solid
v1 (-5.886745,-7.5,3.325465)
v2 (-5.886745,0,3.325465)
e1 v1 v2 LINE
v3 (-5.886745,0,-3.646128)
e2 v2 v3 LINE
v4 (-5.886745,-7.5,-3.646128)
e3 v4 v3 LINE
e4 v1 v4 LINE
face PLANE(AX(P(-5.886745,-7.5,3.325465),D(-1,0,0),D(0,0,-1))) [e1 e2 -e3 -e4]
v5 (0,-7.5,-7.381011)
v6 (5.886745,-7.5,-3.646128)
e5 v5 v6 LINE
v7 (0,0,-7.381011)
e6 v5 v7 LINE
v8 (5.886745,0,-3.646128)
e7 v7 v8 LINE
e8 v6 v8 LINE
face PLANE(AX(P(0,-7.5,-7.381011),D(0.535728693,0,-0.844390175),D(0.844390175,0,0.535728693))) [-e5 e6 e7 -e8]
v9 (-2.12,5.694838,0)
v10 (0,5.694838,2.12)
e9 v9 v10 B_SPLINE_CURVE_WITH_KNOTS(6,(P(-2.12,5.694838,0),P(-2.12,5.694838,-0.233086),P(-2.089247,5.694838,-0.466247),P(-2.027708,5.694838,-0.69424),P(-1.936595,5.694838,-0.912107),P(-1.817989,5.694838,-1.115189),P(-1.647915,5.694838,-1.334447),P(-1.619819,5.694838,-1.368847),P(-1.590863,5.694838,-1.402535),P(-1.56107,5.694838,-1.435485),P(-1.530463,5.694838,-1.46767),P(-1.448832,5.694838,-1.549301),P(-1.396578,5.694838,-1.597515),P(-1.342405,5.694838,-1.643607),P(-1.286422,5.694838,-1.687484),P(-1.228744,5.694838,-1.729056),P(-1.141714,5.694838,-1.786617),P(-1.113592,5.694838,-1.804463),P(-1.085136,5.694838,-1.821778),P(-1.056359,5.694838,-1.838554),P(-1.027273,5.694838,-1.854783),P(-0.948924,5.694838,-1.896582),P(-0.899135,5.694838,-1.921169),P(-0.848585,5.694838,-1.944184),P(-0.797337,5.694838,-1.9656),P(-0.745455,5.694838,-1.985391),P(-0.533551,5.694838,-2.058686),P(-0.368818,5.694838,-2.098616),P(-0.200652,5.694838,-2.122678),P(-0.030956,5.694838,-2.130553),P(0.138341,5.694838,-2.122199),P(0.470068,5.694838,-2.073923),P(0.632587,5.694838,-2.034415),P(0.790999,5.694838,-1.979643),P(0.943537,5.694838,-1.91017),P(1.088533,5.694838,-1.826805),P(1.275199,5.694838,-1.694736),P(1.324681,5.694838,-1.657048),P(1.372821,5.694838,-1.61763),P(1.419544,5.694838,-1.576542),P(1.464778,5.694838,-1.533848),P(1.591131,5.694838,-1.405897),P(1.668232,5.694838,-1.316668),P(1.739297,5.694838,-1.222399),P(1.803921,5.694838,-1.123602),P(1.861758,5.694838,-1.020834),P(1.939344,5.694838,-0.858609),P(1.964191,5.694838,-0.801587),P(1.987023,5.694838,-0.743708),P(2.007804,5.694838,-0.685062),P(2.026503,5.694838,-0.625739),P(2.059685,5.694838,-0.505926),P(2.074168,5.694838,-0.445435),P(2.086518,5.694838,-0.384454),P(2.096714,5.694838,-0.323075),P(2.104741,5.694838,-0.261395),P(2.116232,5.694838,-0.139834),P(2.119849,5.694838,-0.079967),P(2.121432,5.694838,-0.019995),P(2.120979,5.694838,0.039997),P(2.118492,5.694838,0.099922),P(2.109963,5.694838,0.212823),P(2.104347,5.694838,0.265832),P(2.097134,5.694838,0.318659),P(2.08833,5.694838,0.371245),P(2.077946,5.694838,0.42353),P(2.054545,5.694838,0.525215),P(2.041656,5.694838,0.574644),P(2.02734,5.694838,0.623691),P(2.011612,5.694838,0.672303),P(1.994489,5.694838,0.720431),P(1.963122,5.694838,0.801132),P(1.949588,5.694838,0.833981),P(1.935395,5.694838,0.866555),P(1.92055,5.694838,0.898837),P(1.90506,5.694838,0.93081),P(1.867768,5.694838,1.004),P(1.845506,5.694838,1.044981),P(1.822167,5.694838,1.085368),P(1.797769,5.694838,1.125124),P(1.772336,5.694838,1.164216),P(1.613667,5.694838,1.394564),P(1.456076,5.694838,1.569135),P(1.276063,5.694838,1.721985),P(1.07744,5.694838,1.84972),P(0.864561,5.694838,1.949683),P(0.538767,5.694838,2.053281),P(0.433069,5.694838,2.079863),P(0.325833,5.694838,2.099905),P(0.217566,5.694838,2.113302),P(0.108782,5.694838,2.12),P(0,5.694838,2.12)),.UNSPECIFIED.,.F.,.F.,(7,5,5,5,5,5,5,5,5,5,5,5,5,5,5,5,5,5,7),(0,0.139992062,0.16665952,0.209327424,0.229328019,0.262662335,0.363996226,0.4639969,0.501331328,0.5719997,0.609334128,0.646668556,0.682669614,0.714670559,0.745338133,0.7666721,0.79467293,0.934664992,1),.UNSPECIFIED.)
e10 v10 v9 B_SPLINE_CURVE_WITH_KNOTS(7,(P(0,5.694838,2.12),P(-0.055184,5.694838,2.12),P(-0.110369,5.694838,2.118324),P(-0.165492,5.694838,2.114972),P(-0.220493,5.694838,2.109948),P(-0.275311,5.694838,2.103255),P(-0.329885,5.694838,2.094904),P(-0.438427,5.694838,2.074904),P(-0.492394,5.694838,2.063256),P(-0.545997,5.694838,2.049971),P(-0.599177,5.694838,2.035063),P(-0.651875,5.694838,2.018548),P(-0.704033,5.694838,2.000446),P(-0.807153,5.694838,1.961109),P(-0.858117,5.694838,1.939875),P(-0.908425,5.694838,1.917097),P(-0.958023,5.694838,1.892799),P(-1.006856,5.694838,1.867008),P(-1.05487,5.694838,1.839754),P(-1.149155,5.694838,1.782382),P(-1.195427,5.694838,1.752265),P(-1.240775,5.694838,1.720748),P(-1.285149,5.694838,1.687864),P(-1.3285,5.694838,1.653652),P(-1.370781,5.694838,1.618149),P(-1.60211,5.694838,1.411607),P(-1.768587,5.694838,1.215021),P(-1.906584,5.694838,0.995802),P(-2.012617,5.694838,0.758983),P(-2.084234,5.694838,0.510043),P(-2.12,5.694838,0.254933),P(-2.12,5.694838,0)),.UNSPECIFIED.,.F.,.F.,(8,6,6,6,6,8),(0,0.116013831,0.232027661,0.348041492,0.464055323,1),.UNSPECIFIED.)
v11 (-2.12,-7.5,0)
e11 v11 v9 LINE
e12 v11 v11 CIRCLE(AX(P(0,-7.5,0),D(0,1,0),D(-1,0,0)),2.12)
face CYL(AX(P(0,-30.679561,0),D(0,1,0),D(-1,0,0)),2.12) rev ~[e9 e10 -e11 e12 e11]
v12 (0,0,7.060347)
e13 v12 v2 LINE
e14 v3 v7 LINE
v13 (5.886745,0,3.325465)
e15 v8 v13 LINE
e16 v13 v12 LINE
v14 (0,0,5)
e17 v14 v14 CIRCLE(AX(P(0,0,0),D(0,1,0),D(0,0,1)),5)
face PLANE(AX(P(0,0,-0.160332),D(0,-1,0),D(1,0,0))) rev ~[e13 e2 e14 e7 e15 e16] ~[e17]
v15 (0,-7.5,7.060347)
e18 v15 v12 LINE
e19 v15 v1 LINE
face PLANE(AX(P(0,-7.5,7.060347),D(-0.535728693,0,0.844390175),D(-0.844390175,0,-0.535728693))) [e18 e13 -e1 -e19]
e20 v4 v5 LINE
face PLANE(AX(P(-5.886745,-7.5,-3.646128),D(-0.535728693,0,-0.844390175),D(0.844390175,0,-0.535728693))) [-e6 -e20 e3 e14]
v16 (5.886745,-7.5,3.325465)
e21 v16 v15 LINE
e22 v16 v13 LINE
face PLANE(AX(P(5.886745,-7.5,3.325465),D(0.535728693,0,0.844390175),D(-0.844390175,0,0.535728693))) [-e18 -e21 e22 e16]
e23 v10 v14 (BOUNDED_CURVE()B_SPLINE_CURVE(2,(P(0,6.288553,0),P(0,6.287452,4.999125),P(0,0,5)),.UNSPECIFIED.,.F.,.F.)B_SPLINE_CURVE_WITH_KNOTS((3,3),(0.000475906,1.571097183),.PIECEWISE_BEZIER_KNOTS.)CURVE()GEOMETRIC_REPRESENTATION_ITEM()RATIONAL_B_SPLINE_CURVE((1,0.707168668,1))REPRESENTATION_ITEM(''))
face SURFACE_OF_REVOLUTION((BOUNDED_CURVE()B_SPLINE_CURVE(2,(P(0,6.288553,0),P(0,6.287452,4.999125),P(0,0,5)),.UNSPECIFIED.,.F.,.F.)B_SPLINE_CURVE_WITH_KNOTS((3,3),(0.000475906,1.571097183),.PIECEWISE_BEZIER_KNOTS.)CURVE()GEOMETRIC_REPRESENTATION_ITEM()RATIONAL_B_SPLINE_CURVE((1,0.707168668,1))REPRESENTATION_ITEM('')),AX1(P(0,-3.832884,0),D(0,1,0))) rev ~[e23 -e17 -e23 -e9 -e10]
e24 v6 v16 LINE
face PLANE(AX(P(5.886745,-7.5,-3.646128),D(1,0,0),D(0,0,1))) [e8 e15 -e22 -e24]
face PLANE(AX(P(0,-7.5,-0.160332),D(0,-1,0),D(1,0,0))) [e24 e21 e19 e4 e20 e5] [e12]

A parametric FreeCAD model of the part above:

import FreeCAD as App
import Part
import Sketcher
from FreeCAD import Vector

doc = App.newDocument("Part")
body = doc.addObject("PartDesign::Body", "Body")

# Sketch on YZ plane
sketch1 = body.newObject("Sketcher::SketchObject", "Sketch")
sketch1.AttachmentSupport = (doc.getObject("YZ_Plane"), [""])
sketch1.MapMode = "FlatFace"
sketch1.addGeometry(Part.LineSegment(Vector(-7.5, 0, 0), Vector(6.288553, 0, 0)), False)
sketch1.addGeometry(Part.BSplineCurve([Vector(6.288553, 0, 0), Vector(6.287452, 4.999125, 0), Vector(0, 5, 0)], [3, 3], [0.000475906, 1.571097183], False, 2, [1, 0.707168668, 1], False), False)
sketch1.addGeometry(Part.LineSegment(Vector(0, 5, 0), Vector(-7.5, 5, 0)), False)
sketch1.addGeometry(Part.LineSegment(Vector(-7.5, 5, 0), Vector(-7.5, 0, 0)), False)
sketch1.addConstraint(Sketcher.Constraint("Block", 1))
sketch1.addConstraint(Sketcher.Constraint("Coincident", 0, 2, 1, 1))
sketch1.addConstraint(Sketcher.Constraint("Coincident", 1, 2, 2, 1))
sketch1.addConstraint(Sketcher.Constraint("Coincident", 2, 2, 3, 1))
sketch1.addConstraint(Sketcher.Constraint("Coincident", 3, 2, 0, 1))
sketch1.addConstraint(Sketcher.Constraint("Horizontal", 0))
sketch1.addConstraint(Sketcher.Constraint("Horizontal", 2))
sketch1.addConstraint(Sketcher.Constraint("Vertical", 3))
sketch1.addConstraint(Sketcher.Constraint("DistanceX", 2, 2, 2, 1, 7.5))
revolution = body.newObject("PartDesign::Revolution", "Revolution")
revolution.Profile = sketch1
revolution.ReferenceAxis = (sketch1, ["H_Axis"])
revolution.Angle = 360

# Sketch on XZ plane
sketch2 = body.newObject("Sketcher::SketchObject", "Sketch001")
sketch2.AttachmentSupport = (doc.getObject("XZ_Plane"), [""])
sketch2.MapMode = "FlatFace"
sketch2.AttachmentOffset = App.Placement(Vector(0, 0, 7.5), App.Rotation())
sketch2.addGeometry(Part.LineSegment(Vector(5.886745, 3.325465, 0), Vector(0, 7.060347, 0)), False)
sketch2.addGeometry(Part.LineSegment(Vector(0, 7.060347, 0), Vector(-5.886745, 3.325465, 0)), False)
sketch2.addGeometry(Part.LineSegment(Vector(-5.886745, 3.325465, 0), Vector(-5.886745, -3.646128, 0)), False)
sketch2.addGeometry(Part.LineSegment(Vector(-5.886745, -3.646128, 0), Vector(0, -7.381011, 0)), False)
sketch2.addGeometry(Part.LineSegment(Vector(0, -7.381011, 0), Vector(5.886745, -3.646128, 0)), False)
sketch2.addGeometry(Part.LineSegment(Vector(5.886745, -3.646128, 0), Vector(5.886745, 3.325465, 0)), False)
sketch2.addConstraint(Sketcher.Constraint("Coincident", 0, 2, 1, 1))
sketch2.addConstraint(Sketcher.Constraint("Coincident", 1, 2, 2, 1))
sketch2.addConstraint(Sketcher.Constraint("Coincident", 2, 2, 3, 1))
sketch2.addConstraint(Sketcher.Constraint("Coincident", 3, 2, 4, 1))
sketch2.addConstraint(Sketcher.Constraint("Coincident", 4, 2, 5, 1))
sketch2.addConstraint(Sketcher.Constraint("Coincident", 5, 2, 0, 1))
sketch2.addConstraint(Sketcher.Constraint("Vertical", 2))
sketch2.addConstraint(Sketcher.Constraint("Vertical", 5))
sketch2.addConstraint(Sketcher.Constraint("Symmetric", 2, 2, 4, 2, -2))
sketch2.addConstraint(Sketcher.Constraint("PointOnObject", 0, 2, -2))
sketch2.addConstraint(Sketcher.Constraint("PointOnObject", 3, 2, -2))
sketch2.addConstraint(Sketcher.Constraint("Parallel", 0, 3))
sketch2.addConstraint(Sketcher.Constraint("Parallel", 1, 4))
sketch2.addConstraint(Sketcher.Constraint("DistanceY", 2, 2, 2, 1, 6.971593))
sketch2.addConstraint(Sketcher.Constraint("DistanceY", 2, 2, -1, 1, 3.646128))
sketch2.addConstraint(Sketcher.Constraint("DistanceY", 3, 2, -1, 1, 7.381011))
sketch2.addConstraint(Sketcher.Constraint("DistanceX", 2, 2, 4, 2, 11.773489))
pad1 = body.newObject("PartDesign::Pad", "Pad")
pad1.Profile = sketch2
pad1.Length = 7.5
pad1.Reversed = True

# Sketch on XZ plane
sketch3 = body.newObject("Sketcher::SketchObject", "Sketch002")
sketch3.AttachmentSupport = (doc.getObject("XZ_Plane"), [""])
sketch3.MapMode = "FlatFace"
sketch3.AttachmentOffset = App.Placement(Vector(0, 0, 7.5), App.Rotation())
sketch3.addGeometry(Part.Circle(Vector(0, 0, 0), Vector(0, 0, 1), 2.12), False)
sketch3.addConstraint(Sketcher.Constraint("Coincident", 0, 3, -1, 1))
sketch3.addConstraint(Sketcher.Constraint("Diameter", 0, 4.24))
doc.recompute()
hole = body.newObject("PartDesign::Hole", "Hole")
hole.Profile = sketch3
hole.ThreadType = "None"
hole.Diameter = 4.24
hole.DepthType = "ThroughAll"

doc.recompute()
